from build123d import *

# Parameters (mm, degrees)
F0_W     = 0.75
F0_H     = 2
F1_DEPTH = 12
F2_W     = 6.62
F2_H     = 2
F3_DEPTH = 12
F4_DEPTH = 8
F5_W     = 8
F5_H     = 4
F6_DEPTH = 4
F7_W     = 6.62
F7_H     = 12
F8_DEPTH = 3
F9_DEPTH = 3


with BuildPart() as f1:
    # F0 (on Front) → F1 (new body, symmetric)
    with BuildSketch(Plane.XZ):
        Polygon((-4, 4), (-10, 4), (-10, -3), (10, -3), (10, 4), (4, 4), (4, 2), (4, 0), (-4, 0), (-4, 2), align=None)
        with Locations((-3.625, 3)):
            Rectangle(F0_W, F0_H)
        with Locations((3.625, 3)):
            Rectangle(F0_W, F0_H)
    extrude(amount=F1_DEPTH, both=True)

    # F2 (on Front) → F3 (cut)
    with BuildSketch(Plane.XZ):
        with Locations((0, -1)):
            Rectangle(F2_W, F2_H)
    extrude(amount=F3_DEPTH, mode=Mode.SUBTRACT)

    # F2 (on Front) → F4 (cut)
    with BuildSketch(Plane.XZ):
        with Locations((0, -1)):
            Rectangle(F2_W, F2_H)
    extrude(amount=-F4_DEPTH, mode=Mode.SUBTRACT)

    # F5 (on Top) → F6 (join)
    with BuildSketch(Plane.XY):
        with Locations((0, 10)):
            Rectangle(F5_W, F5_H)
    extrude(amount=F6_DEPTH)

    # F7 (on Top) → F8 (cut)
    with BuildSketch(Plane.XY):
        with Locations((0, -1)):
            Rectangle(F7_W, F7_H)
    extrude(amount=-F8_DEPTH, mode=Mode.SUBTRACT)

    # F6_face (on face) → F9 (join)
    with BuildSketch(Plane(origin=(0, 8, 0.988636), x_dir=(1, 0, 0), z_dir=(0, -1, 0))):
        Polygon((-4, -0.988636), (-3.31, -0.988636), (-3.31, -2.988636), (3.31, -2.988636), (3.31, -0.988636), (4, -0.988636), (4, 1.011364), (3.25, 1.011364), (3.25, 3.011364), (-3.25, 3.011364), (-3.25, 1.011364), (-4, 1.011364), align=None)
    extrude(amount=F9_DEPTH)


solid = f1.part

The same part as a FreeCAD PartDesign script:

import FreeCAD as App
import Part
import Sketcher
from FreeCAD import Vector

doc = App.newDocument("Part")
params = doc.addObject("Spreadsheet::Sheet", "Params")
for row, (alias, value) in enumerate([
    ("sketch1_width", "20 mm"),
    ("sketch1_width2", "8 mm"),
    ("sketch1_height", "7 mm"),
    ("sketch1_height2", "2 mm"),
    ("sketch1_width3", "6.75 mm"),
    ("pad1_length", "24 mm"),
    ("sketch2_height", "2 mm"),
    ("sketch2_width", "6.62 mm"),
    ("pocket1_length", "12 mm"),
    ("sketch3_height", "2 mm"),
    ("sketch3_width", "6.62 mm"),
    ("pocket2_length", "8 mm"),
    ("sketch4_width", "8 mm"),
    ("sketch4_height", "4 mm"),
    ("pad2_length", "4 mm"),
    ("sketch5_height", "12 mm"),
    ("sketch5_width", "6.62 mm"),
    ("pocket3_length", "3 mm"),
    ("sketch6_height", "2 mm"),
    ("sketch6_width", "6.5 mm"),
    ("sketch6_width2", "0.69 mm"),
    ("pad3_length", "3 mm"),
], start=1):
    params.set(f"A{row}", alias)
    params.set(f"B{row}", "=" + value)
    params.setAlias(f"B{row}", alias)

body = doc.addObject("PartDesign::Body", "Body")

sketch1 = doc.addObject("Sketcher::SketchObject", "Sketch")
body.addObject(sketch1)
sketch1.AttachmentSupport = (doc.XZ_Plane, [""])
sketch1.MapMode = "FlatFace"
sketch1.addGeometry([
    Part.LineSegment(Vector(-10, 4, 0), Vector(-10, -3, 0)),
    Part.LineSegment(Vector(-10, -3, 0), Vector(10, -3, 0)),
    Part.LineSegment(Vector(10, -3, 0), Vector(10, 4, 0)),
    Part.LineSegment(Vector(10, 4, 0), Vector(3.2, 4, 0)),
    Part.LineSegment(Vector(3.2, 4, 0), Vector(3.2, 2, 0)),
    Part.LineSegment(Vector(3.2, 2, 0), Vector(4, 2, 0)),
    Part.LineSegment(Vector(4, 2, 0), Vector(4, 0, 0)),
    Part.LineSegment(Vector(4, 0, 0), Vector(-4, 0, 0)),
    Part.LineSegment(Vector(-4, 0, 0), Vector(-4, 2, 0)),
    Part.LineSegment(Vector(-4, 2, 0), Vector(-3.2, 2, 0)),
    Part.LineSegment(Vector(-3.2, 2, 0), Vector(-3.2, 4, 0)),
    Part.LineSegment(Vector(-3.2, 4, 0), Vector(-10, 4, 0)),
], False)
sketch1.addConstraint([
    Sketcher.Constraint("Coincident", 0, 2, 1, 1),
    Sketcher.Constraint("Coincident", 1, 2, 2, 1),
    Sketcher.Constraint("Coincident", 2, 2, 3, 1),
    Sketcher.Constraint("Coincident", 3, 2, 4, 1),
    Sketcher.Constraint("Coincident", 4, 2, 5, 1),
    Sketcher.Constraint("Coincident", 5, 2, 6, 1),
    Sketcher.Constraint("Coincident", 6, 2, 7, 1),
    Sketcher.Constraint("Coincident", 7, 2, 8, 1),
    Sketcher.Constraint("Coincident", 8, 2, 9, 1),
    Sketcher.Constraint("Coincident", 9, 2, 10, 1),
    Sketcher.Constraint("Coincident", 10, 2, 11, 1),
    Sketcher.Constraint("Coincident", 11, 2, 0, 1),
    Sketcher.Constraint("Vertical", 0),
    Sketcher.Constraint("Horizontal", 1),
    Sketcher.Constraint("Vertical", 2),
    Sketcher.Constraint("Horizontal", 3),
    Sketcher.Constraint("Vertical", 4),
    Sketcher.Constraint("Horizontal", 5),
    Sketcher.Constraint("Vertical", 6),
    Sketcher.Constraint("Horizontal", 7),
    Sketcher.Constraint("Vertical", 8),
    Sketcher.Constraint("Horizontal", 9),
    Sketcher.Constraint("Vertical", 10),
    Sketcher.Constraint("Horizontal", 11),
    Sketcher.Constraint("Symmetric", 6, 2, 7, 2, -1, 1),
    Sketcher.Constraint("Symmetric", 4, 2, 9, 2, -2),
    Sketcher.Constraint("Symmetric", 2, 2, 11, 2, -2),
    Sketcher.Constraint("Equal", 4, 6),
    Sketcher.Constraint("DistanceX", 1, 1, 1, 2, 20.0),
    Sketcher.Constraint("DistanceX", 7, 2, 7, 1, 8.0),
    Sketcher.Constraint("DistanceY", 0, 2, 0, 1, 7.0),
    Sketcher.Constraint("DistanceY", 4, 2, 4, 1, 2.0),
    Sketcher.Constraint("DistanceX", 3, 2, 3, 1, 6.75),
])
sketch1.setExpression("Constraints[28]", "Params.sketch1_width")
sketch1.setExpression("Constraints[29]", "Params.sketch1_width2")
sketch1.setExpression("Constraints[30]", "Params.sketch1_height")
sketch1.setExpression("Constraints[31]", "Params.sketch1_height2")
sketch1.setExpression("Constraints[32]", "Params.sketch1_width3")
pad1 = doc.addObject("PartDesign::Pad", "Pad")
body.addObject(pad1)
pad1.Profile = sketch1
pad1.setExpression("Length", "Params.pad1_length")
pad1.Midplane = True

sketch2 = doc.addObject("Sketcher::SketchObject", "Sketch001")
body.addObject(sketch2)
sketch2.AttachmentSupport = (doc.XZ_Plane, [""])
sketch2.MapMode = "FlatFace"
sketch2.addGeometry([
    Part.LineSegment(Vector(-3.3, 0, 0), Vector(-3.3, -2, 0)),
    Part.LineSegment(Vector(-3.3, -2, 0), Vector(3.3, -2, 0)),
    Part.LineSegment(Vector(3.3, -2, 0), Vector(3.3, 0, 0)),
    Part.LineSegment(Vector(3.3, 0, 0), Vector(-3.3, 0, 0)),
], False)
sketch2.addConstraint([
    Sketcher.Constraint("Coincident", 0, 2, 1, 1),
    Sketcher.Constraint("Coincident", 1, 2, 2, 1),
    Sketcher.Constraint("Coincident", 2, 2, 3, 1),
    Sketcher.Constraint("Coincident", 3, 2, 0, 1),
    Sketcher.Constraint("Vertical", 0),
    Sketcher.Constraint("Horizontal", 1),
    Sketcher.Constraint("Vertical", 2),
    Sketcher.Constraint("Horizontal", 3),
    Sketcher.Constraint("Symmetric", 2, 2, 3, 2, -1, 1),
    Sketcher.Constraint("DistanceY", 0, 2, 0, 1, 2.0),
    Sketcher.Constraint("DistanceX", 1, 1, 1, 2, 6.62),
])
sketch2.setExpression("Constraints[9]", "Params.sketch2_height")
sketch2.setExpression("Constraints[10]", "Params.sketch2_width")
pocket1 = doc.addObject("PartDesign::Pocket", "Pocket")
body.addObject(pocket1)
pocket1.Profile = sketch2
pocket1.setExpression("Length", "Params.pocket1_length")
pocket1.Reversed = True

sketch3 = doc.addObject("Sketcher::SketchObject", "Sketch002")
body.addObject(sketch3)
sketch3.AttachmentSupport = (doc.XZ_Plane, [""])
sketch3.MapMode = "FlatFace"
sketch3.addGeometry([
    Part.LineSegment(Vector(-3.3, 0, 0), Vector(-3.3, -2, 0)),
    Part.LineSegment(Vector(-3.3, -2, 0), Vector(3.3, -2, 0)),
    Part.LineSegment(Vector(3.3, -2, 0), Vector(3.3, 0, 0)),
    Part.LineSegment(Vector(3.3, 0, 0), Vector(-3.3, 0, 0)),
], False)
sketch3.addConstraint([
    Sketcher.Constraint("Coincident", 0, 2, 1, 1),
    Sketcher.Constraint("Coincident", 1, 2, 2, 1),
    Sketcher.Constraint("Coincident", 2, 2, 3, 1),
    Sketcher.Constraint("Coincident", 3, 2, 0, 1),
    Sketcher.Constraint("Vertical", 0),
    Sketcher.Constraint("Horizontal", 1),
    Sketcher.Constraint("Vertical", 2),
    Sketcher.Constraint("Horizontal", 3),
    Sketcher.Constraint("Symmetric", 2, 2, 3, 2, -1, 1),
    Sketcher.Constraint("DistanceY", 0, 2, 0, 1, 2.0),
    Sketcher.Constraint("DistanceX", 1, 1, 1, 2, 6.62),
])
sketch3.setExpression("Constraints[9]", "Params.sketch3_height")
sketch3.setExpression("Constraints[10]", "Params.sketch3_width")
pocket2 = doc.addObject("PartDesign::Pocket", "Pocket001")
body.addObject(pocket2)
pocket2.Profile = sketch3
pocket2.setExpression("Length", "Params.pocket2_length")

sketch4 = doc.addObject("Sketcher::SketchObject", "Sketch003")
body.addObject(sketch4)
sketch4.AttachmentSupport = (doc.XY_Plane, [""])
sketch4.MapMode = "FlatFace"
sketch4.addGeometry([
    Part.LineSegment(Vector(-4, 12, 0), Vector(-4, 8, 0)),
    Part.LineSegment(Vector(-4, 8, 0), Vector(4, 8, 0)),
    Part.LineSegment(Vector(4, 8, 0), Vector(4, 12, 0)),
    Part.LineSegment(Vector(4, 12, 0), Vector(-4, 12, 0)),
], False)
sketch4.addConstraint([
    Sketcher.Constraint("Coincident", 0, 2, 1, 1),
    Sketcher.Constraint("Coincident", 1, 2, 2, 1),
    Sketcher.Constraint("Coincident", 2, 2, 3, 1),
    Sketcher.Constraint("Coincident", 3, 2, 0, 1),
    Sketcher.Constraint("Vertical", 0),
    Sketcher.Constraint("Horizontal", 1),
    Sketcher.Constraint("Vertical", 2),
    Sketcher.Constraint("Horizontal", 3),
    Sketcher.Constraint("DistanceX", 1, 1, 1, 2, 8.0),
    Sketcher.Constraint("DistanceY", 0, 2, 0, 1, 4.0),
    Sketcher.Constraint("DistanceX", 0, 2, -1, 1, 4.0),
    Sketcher.Constraint("DistanceY", -1, 1, 0, 2, 8.0),
])
sketch4.setExpression("Constraints[8]", "Params.sketch4_width")
sketch4.setExpression("Constraints[9]", "Params.sketch4_height")
pad2 = doc.addObject("PartDesign::Pad", "Pad001")
body.addObject(pad2)
pad2.Profile = sketch4
pad2.setExpression("Length", "Params.pad2_length")

sketch5 = doc.addObject("Sketcher::SketchObject", "Sketch004")
body.addObject(sketch5)
sketch5.AttachmentSupport = (doc.XY_Plane, [""])
sketch5.MapMode = "FlatFace"
sketch5.addGeometry([
    Part.LineSegment(Vector(-3, 5, 0), Vector(-3, -7, 0)),
    Part.LineSegment(Vector(-3, -7, 0), Vector(3, -7, 0)),
    Part.LineSegment(Vector(3, -7, 0), Vector(3, 5, 0)),
    Part.LineSegment(Vector(3, 5, 0), Vector(-3, 5, 0)),
], False)
sketch5.addConstraint([
    Sketcher.Constraint("Coincident", 0, 2, 1, 1),
    Sketcher.Constraint("Coincident", 1, 2, 2, 1),
    Sketcher.Constraint("Coincident", 2, 2, 3, 1),
    Sketcher.Constraint("Coincident", 3, 2, 0, 1),
    Sketcher.Constraint("Vertical", 0),
    Sketcher.Constraint("Horizontal", 1),
    Sketcher.Constraint("Vertical", 2),
    Sketcher.Constraint("Horizontal", 3),
    Sketcher.Constraint("DistanceY", 0, 2, 0, 1, 12.0),
    Sketcher.Constraint("DistanceY", 0, 2, -1, 1, 7.0),
    Sketcher.Constraint("DistanceX", 1, 1, 1, 2, 6.62),
    Sketcher.Constraint("DistanceX", 0, 2, -1, 1, 3.31),
])
sketch5.setExpression("Constraints[8]", "Params.sketch5_height")
sketch5.setExpression("Constraints[10]", "Params.sketch5_width")
pocket3 = doc.addObject("PartDesign::Pocket", "Pocket002")
body.addObject(pocket3)
pocket3.Profile = sketch5
pocket3.setExpression("Length", "Params.pocket3_length")

sketch6 = doc.addObject("Sketcher::SketchObject", "Sketch005")
body.addObject(sketch6)
sketch6.AttachmentSupport = (doc.XZ_Plane, [""])
sketch6.MapMode = "FlatFace"
sketch6.AttachmentOffset = App.Placement(Vector(0, 0, -8), App.Rotation())
sketch6.addGeometry([
    Part.LineSegment(Vector(-4, 0, 0), Vector(-3.3, 0, 0)),
    Part.LineSegment(Vector(-3.3, 0, 0), Vector(-3.3, -2, 0)),
    Part.LineSegment(Vector(-3.3, -2, 0), Vector(3.3, -2, 0)),
    Part.LineSegment(Vector(3.3, -2, 0), Vector(3.3, 0, 0)),
    Part.LineSegment(Vector(3.3, 0, 0), Vector(4, 0, 0)),
    Part.LineSegment(Vector(4, 0, 0), Vector(4, 2, 0)),
    Part.LineSegment(Vector(4, 2, 0), Vector(3.2, 2, 0)),
    Part.LineSegment(Vector(3.2, 2, 0), Vector(3.2, 4, 0)),
    Part.LineSegment(Vector(3.2, 4, 0), Vector(-3.2, 4, 0)),
    Part.LineSegment(Vector(-3.2, 4, 0), Vector(-3.2, 2, 0)),
    Part.LineSegment(Vector(-3.2, 2, 0), Vector(-4, 2, 0)),
    Part.LineSegment(Vector(-4, 2, 0), Vector(-4, 0, 0)),
], False)
sketch6.addConstraint([
    Sketcher.Constraint("Coincident", 0, 2, 1, 1),
    Sketcher.Constraint("Coincident", 1, 2, 2, 1),
    Sketcher.Constraint("Coincident", 2, 2, 3, 1),
    Sketcher.Constraint("Coincident", 3, 2, 4, 1),
    Sketcher.Constraint("Coincident", 4, 2, 5, 1),
    Sketcher.Constraint("Coincident", 5, 2, 6, 1),
    Sketcher.Constraint("Coincident", 6, 2, 7, 1),
    Sketcher.Constraint("Coincident", 7, 2, 8, 1),
    Sketcher.Constraint("Coincident", 8, 2, 9, 1),
    Sketcher.Constraint("Coincident", 9, 2, 10, 1),
    Sketcher.Constraint("Coincident", 10, 2, 11, 1),
    Sketcher.Constraint("Coincident", 11, 2, 0, 1),
    Sketcher.Constraint("Horizontal", 0),
    Sketcher.Constraint("Vertical", 1),
    Sketcher.Constraint("Horizontal", 2),
    Sketcher.Constraint("Vertical", 3),
    Sketcher.Constraint("Horizontal", 4),
    Sketcher.Constraint("Vertical", 5),
    Sketcher.Constraint("Horizontal", 6),
    Sketcher.Constraint("Vertical", 7),
    Sketcher.Constraint("Horizontal", 8),
    Sketcher.Constraint("Vertical", 9),
    Sketcher.Constraint("Horizontal", 10),
    Sketcher.Constraint("Vertical", 11),
    Sketcher.Constraint("Symmetric", 0, 2, 3, 2, -1, 1),
    Sketcher.Constraint("Symmetric", 6, 2, 9, 2, -2),
    Sketcher.Constraint("Symmetric", 4, 2, 11, 2, -2),
    Sketcher.Constraint("Equal", 3, 5),
    Sketcher.Constraint("Equal", 5, 7),
    Sketcher.Constraint("DistanceY", 1, 2, 1, 1, 2.0),
    Sketcher.Constraint("DistanceX", 8, 2, 8, 1, 6.5),
    Sketcher.Constraint("DistanceX", -1, 1, 4, 2, 4.0),
    Sketcher.Constraint("DistanceX", 0, 1, 0, 2, 0.69),
])
sketch6.setExpression("Constraints[29]", "Params.sketch6_height")
sketch6.setExpression("Constraints[30]", "Params.sketch6_width")
sketch6.setExpression("Constraints[32]", "Params.sketch6_width2")
pad3 = doc.addObject("PartDesign::Pad", "Pad002")
body.addObject(pad3)
pad3.Profile = sketch6
pad3.setExpression("Length", "Params.pad3_length")

doc.recompute()
